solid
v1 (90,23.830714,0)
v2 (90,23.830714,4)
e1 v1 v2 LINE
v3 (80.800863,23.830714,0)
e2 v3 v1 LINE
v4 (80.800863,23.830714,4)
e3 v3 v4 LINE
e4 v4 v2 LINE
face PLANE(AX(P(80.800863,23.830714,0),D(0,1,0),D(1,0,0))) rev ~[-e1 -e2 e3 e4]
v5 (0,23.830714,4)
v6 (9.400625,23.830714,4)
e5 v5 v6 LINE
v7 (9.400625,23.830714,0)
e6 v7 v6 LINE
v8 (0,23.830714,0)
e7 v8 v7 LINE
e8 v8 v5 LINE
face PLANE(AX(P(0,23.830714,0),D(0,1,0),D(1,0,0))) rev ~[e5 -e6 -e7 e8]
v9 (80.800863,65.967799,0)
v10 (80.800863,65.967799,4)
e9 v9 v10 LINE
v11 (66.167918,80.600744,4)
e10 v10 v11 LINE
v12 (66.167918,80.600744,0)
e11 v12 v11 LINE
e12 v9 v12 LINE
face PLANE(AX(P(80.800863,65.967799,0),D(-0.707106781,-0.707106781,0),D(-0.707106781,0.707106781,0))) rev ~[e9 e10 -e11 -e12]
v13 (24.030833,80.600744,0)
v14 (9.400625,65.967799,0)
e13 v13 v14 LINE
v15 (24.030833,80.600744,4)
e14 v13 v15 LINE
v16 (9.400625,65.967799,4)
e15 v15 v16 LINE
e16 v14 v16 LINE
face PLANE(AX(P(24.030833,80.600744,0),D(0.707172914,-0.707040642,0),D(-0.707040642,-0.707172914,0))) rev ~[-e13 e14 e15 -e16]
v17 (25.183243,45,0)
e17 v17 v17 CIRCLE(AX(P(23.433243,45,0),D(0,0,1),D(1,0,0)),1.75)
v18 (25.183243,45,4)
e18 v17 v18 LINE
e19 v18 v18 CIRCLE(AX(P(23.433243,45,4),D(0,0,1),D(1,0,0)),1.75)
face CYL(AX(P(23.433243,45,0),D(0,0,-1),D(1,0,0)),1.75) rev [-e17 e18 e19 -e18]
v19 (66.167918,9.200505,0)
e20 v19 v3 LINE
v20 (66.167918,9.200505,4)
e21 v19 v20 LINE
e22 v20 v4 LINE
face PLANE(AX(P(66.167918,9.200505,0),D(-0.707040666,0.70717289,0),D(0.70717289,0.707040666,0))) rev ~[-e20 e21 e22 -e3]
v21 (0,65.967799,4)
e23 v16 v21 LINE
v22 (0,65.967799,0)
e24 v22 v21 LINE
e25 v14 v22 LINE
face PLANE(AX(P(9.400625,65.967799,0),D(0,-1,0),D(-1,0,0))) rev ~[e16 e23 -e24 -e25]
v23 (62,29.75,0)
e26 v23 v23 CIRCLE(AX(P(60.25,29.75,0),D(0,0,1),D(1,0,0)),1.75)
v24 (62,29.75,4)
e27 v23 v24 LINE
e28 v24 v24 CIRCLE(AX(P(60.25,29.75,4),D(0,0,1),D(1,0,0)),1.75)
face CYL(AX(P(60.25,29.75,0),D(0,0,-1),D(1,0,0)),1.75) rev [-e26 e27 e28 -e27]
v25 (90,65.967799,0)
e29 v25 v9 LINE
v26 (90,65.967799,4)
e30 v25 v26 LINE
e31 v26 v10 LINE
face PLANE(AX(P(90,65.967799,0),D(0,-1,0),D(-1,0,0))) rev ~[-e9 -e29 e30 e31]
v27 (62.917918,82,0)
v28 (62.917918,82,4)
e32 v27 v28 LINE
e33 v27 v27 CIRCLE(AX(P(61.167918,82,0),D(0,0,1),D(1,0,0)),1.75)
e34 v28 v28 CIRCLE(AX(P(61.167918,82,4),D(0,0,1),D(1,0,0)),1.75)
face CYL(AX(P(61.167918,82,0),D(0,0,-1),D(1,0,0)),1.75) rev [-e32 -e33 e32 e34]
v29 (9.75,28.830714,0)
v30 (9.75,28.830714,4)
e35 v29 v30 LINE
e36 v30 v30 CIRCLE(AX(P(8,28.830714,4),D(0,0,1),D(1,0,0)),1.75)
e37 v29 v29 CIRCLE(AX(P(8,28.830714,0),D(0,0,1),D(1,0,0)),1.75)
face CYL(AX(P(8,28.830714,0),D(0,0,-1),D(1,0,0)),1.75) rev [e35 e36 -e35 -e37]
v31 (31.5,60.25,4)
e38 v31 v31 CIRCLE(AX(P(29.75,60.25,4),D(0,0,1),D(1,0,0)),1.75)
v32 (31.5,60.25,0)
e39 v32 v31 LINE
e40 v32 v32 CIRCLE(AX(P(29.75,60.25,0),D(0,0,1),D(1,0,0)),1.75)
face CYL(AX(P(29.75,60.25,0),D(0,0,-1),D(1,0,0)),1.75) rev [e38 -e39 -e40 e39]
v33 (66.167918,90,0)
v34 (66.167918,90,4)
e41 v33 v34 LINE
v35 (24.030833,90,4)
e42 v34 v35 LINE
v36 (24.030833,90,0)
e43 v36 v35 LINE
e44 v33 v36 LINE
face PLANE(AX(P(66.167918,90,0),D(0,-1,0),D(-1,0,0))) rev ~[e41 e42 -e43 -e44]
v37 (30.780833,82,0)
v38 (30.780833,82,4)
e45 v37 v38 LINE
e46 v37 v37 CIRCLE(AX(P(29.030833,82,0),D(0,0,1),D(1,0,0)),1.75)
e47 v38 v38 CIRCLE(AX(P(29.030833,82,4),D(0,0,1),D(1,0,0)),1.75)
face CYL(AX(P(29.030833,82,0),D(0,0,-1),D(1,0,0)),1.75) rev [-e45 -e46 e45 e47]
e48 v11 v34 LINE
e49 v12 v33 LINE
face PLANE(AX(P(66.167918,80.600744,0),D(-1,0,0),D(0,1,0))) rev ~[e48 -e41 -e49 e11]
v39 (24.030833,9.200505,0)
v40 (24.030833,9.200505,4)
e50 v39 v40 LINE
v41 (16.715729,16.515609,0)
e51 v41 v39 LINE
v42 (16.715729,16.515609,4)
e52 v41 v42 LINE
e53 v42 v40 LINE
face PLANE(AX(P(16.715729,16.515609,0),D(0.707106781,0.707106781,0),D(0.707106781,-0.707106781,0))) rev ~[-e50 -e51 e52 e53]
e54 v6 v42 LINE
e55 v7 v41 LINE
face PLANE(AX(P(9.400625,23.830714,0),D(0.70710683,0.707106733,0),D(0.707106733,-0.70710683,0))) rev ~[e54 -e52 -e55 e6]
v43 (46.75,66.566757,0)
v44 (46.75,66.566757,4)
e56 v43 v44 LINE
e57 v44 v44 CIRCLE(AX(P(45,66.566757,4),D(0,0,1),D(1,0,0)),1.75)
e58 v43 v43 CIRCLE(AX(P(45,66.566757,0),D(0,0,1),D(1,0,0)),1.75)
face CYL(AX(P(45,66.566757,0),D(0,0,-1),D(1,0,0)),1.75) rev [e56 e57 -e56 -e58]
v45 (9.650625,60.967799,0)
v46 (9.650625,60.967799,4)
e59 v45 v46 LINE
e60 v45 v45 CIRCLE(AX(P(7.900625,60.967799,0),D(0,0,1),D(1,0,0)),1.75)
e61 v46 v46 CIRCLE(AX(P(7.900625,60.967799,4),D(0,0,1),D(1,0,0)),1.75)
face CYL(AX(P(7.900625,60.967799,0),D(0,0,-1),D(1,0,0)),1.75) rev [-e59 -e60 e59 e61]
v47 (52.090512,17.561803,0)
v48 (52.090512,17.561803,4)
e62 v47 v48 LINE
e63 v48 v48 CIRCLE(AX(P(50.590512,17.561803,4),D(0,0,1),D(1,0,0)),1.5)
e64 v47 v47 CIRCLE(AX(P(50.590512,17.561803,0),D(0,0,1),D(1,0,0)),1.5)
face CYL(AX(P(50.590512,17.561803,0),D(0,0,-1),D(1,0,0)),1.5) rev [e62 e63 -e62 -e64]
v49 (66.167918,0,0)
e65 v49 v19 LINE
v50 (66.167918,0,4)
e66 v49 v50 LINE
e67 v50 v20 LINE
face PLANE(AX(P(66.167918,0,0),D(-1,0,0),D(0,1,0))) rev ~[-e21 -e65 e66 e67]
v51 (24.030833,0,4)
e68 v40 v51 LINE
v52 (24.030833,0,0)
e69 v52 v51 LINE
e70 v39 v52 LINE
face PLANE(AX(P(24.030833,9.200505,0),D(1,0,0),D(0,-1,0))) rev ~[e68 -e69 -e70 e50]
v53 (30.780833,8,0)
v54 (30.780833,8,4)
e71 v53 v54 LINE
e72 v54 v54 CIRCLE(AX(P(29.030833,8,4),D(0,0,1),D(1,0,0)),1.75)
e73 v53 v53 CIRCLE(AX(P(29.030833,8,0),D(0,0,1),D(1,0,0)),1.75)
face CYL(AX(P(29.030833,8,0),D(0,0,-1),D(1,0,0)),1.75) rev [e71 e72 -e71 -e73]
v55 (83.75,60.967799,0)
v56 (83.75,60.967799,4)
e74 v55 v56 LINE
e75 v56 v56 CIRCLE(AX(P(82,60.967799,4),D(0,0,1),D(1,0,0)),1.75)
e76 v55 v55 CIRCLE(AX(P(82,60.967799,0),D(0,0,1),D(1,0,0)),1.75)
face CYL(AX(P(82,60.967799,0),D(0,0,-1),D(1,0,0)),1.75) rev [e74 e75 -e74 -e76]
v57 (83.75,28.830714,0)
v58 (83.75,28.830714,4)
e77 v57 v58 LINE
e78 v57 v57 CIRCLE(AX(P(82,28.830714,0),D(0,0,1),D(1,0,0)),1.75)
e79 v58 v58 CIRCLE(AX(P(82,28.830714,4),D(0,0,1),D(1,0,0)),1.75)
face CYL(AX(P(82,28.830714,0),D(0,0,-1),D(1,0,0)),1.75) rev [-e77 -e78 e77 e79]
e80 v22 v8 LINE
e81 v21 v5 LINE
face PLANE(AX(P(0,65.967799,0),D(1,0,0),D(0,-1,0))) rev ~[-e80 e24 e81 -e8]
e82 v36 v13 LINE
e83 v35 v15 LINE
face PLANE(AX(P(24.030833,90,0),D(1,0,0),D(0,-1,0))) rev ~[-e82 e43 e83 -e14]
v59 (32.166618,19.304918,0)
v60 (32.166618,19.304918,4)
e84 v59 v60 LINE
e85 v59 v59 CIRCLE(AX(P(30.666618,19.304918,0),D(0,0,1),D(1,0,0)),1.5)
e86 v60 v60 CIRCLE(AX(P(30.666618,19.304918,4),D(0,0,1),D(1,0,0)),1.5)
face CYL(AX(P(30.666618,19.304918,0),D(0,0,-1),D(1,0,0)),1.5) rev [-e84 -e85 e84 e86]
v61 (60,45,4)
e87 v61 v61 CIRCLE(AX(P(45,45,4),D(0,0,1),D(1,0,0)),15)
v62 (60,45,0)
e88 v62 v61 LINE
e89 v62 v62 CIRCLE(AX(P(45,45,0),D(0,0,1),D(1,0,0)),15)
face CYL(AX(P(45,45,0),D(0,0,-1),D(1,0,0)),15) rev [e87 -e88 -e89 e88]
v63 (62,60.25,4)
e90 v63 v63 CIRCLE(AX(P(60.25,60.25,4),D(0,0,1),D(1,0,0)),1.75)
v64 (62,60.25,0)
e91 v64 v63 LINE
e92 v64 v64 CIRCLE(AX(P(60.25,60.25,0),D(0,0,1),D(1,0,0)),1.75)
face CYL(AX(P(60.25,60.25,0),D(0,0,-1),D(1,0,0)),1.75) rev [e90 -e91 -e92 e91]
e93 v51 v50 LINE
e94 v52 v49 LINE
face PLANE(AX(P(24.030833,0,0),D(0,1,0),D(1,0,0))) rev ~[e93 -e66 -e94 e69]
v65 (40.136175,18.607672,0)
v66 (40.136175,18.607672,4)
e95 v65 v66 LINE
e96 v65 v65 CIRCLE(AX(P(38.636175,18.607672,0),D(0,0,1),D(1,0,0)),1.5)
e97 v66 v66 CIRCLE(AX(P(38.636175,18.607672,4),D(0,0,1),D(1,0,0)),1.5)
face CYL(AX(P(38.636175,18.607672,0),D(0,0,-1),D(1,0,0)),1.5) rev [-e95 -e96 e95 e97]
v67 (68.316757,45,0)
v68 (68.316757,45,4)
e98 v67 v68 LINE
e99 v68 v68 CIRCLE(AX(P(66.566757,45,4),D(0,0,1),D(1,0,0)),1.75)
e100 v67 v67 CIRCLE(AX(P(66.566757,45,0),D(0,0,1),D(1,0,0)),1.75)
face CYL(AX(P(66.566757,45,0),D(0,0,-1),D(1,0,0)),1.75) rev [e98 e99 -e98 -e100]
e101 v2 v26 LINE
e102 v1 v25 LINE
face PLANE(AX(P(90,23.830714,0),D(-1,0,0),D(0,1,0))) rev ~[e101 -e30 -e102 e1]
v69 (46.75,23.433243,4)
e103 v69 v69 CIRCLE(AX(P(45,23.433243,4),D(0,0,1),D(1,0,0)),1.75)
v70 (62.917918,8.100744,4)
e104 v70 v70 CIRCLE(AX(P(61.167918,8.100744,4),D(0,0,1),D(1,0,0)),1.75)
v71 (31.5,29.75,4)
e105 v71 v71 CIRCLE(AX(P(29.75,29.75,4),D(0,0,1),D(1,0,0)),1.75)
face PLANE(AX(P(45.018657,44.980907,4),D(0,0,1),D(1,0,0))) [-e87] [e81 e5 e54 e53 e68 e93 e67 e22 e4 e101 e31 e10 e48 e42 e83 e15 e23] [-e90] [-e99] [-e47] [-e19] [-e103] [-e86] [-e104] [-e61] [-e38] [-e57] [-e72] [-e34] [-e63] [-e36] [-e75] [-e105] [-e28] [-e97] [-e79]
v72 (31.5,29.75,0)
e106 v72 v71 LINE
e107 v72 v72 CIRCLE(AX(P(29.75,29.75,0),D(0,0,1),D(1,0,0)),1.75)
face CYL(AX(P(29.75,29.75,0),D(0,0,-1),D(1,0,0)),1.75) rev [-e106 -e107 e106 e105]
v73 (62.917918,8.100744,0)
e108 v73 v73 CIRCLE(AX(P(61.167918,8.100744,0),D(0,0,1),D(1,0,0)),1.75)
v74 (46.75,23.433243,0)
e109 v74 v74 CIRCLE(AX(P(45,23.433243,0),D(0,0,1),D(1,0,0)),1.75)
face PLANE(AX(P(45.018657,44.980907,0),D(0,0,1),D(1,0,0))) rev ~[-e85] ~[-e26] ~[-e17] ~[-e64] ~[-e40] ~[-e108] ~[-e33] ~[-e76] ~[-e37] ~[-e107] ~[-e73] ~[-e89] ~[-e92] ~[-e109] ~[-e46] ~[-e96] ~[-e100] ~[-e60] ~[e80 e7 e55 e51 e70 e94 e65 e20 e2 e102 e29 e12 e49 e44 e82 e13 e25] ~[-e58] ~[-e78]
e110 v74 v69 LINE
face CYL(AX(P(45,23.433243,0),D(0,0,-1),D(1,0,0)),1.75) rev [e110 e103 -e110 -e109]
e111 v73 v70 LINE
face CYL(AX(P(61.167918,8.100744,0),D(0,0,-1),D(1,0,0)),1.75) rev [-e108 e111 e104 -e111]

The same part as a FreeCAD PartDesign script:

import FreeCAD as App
import Part
import Sketcher

V = App.Vector
Q = App.Units.Quantity


def add_polygon(sketch, points):
    """Adds a closed chain of lines whose ends are joined by coincident constraints."""
    first, n = sketch.GeometryCount, len(points)
    for a, b in zip(points, points[1:] + points[:1]):
        sketch.addGeometry(Part.LineSegment(App.Vector(*a, 0), App.Vector(*b, 0)), False)
    for i in range(n):
        sketch.addConstraint(Sketcher.Constraint("Coincident", first + i, 2, first + (i + 1) % n, 1))

doc = App.newDocument("Part")
body = doc.addObject("PartDesign::Body", "Body")

# Sketch on XY plane
sketch1 = body.newObject("Sketcher::SketchObject", "Sketch")
sketch1.AttachmentSupport = (doc.getObject("XY_Plane"), [""])
sketch1.MapMode = "FlatFace"
add_polygon(sketch1, [(24, 9.2), (24, 0), (66.2, 0), (66.2, 9.2), (80.8, 23.8), (90, 23.8), (90, 66), (80.8, 66), (66.2, 80.6), (66.2, 90), (24, 90), (24, 80.6), (9.4, 66), (0, 66), (0, 23.8), (9.4, 23.8), (16.7, 16.5)])  # lines 0-16
sketch1.addGeometry(Part.Circle(V(29, 8, 0), V(0, 0, 1), 1.8), False)  # 17
sketch1.addGeometry(Part.Circle(V(30.7, 19.3, 0), V(0, 0, 1), 1.5), False)  # 18
sketch1.addGeometry(Part.Circle(V(38.6, 18.6, 0), V(0, 0, 1), 1.5), False)  # 19
sketch1.addGeometry(Part.Circle(V(8, 28.8, 0), V(0, 0, 1), 1.8), False)  # 20
sketch1.addGeometry(Part.Circle(V(29.8, 29.8, 0), V(0, 0, 1), 1.8), False)  # 21
sketch1.addGeometry(Part.Circle(V(61.2, 8.1, 0), V(0, 0, 1), 1.8), False)  # 22
sketch1.addGeometry(Part.Circle(V(50.6, 17.6, 0), V(0, 0, 1), 1.5), False)  # 23
sketch1.addGeometry(Part.Circle(V(45, 23.4, 0), V(0, 0, 1), 1.8), False)  # 24
sketch1.addGeometry(Part.Circle(V(60.2, 29.8, 0), V(0, 0, 1), 1.8), False)  # 25
sketch1.addGeometry(Part.Circle(V(82, 28.8, 0), V(0, 0, 1), 1.8), False)  # 26
sketch1.addGeometry(Part.Circle(V(23.4, 45, 0), V(0, 0, 1), 1.8), False)  # 27
sketch1.addGeometry(Part.Circle(V(7.9, 61, 0), V(0, 0, 1), 1.8), False)  # 28
sketch1.addGeometry(Part.Circle(V(29.8, 60.2, 0), V(0, 0, 1), 1.8), False)  # 29
sketch1.addGeometry(Part.Circle(V(29, 82, 0), V(0, 0, 1), 1.8), False)  # 30
sketch1.addGeometry(Part.Circle(V(45, 45, 0), V(0, 0, 1), 15), False)  # 31
sketch1.addGeometry(Part.Circle(V(60.2, 60.2, 0), V(0, 0, 1), 1.8), False)  # 32
sketch1.addGeometry(Part.Circle(V(66.6, 45, 0), V(0, 0, 1), 1.8), False)  # 33
sketch1.addGeometry(Part.Circle(V(82, 61, 0), V(0, 0, 1), 1.8), False)  # 34
sketch1.addGeometry(Part.Circle(V(45, 66.6, 0), V(0, 0, 1), 1.8), False)  # 35
sketch1.addGeometry(Part.Circle(V(61.2, 82, 0), V(0, 0, 1), 1.8), False)  # 36
sketch1.addConstraint([
    Sketcher.Constraint("Vertical", 0),
    Sketcher.Constraint("Horizontal", 1),
    Sketcher.Constraint("Vertical", 2),
    Sketcher.Constraint("Horizontal", 4),
    Sketcher.Constraint("Vertical", 5),
    Sketcher.Constraint("Horizontal", 6),
    Sketcher.Constraint("Vertical", 8),
    Sketcher.Constraint("Horizontal", 9),
    Sketcher.Constraint("Vertical", 10),
    Sketcher.Constraint("Horizontal", 12),
    Sketcher.Constraint("Vertical", 13),
    Sketcher.Constraint("Horizontal", 14),
    Sketcher.Constraint("Equal", 18, 19),
    Sketcher.Constraint("Equal", 17, 20),
    Sketcher.Constraint("Equal", 20, 21),
    Sketcher.Constraint("Equal", 21, 22),
    Sketcher.Constraint("Equal", 19, 23),
    Sketcher.Constraint("Equal", 22, 24),
    Sketcher.Constraint("Equal", 24, 25),
    Sketcher.Constraint("Equal", 25, 26),
    Sketcher.Constraint("Equal", 26, 27),
    Sketcher.Constraint("Equal", 27, 28),
    Sketcher.Constraint("Equal", 28, 29),
    Sketcher.Constraint("Equal", 29, 30),
    Sketcher.Constraint("Equal", 30, 32),
    Sketcher.Constraint("Equal", 32, 33),
    Sketcher.Constraint("Equal", 33, 34),
    Sketcher.Constraint("Equal", 34, 35),
    Sketcher.Constraint("Equal", 35, 36),
    Sketcher.Constraint("PointOnObject", 0, 2, -1),
    Sketcher.Constraint("PointOnObject", 12, 2, -2),
    Sketcher.Constraint("Parallel", 7, 15),
    Sketcher.Constraint("Parallel", 15, 16),
    Sketcher.Constraint("Horizontal", 21, 3, 25, 3),
    Sketcher.Constraint("Horizontal", 20, 3, 26, 3),
    Sketcher.Constraint("Horizontal", 27, 3, 31, 3),
    Sketcher.Constraint("Horizontal", 29, 3, 32, 3),
    Sketcher.Constraint("Horizontal", 31, 3, 33, 3),
    Sketcher.Constraint("Horizontal", 28, 3, 34, 3),
    Sketcher.Constraint("Horizontal", 30, 3, 36, 3),
    Sketcher.Constraint("Horizontal", 7, 2, 10, 2),
    Sketcher.Constraint("Horizontal", 6, 2, 11, 2),
    Sketcher.Constraint("Horizontal", 4, 2, 13, 2),
    Sketcher.Constraint("Horizontal", 2, 2, 16, 2),
    Sketcher.Constraint("Vertical", 21, 3, 29, 3),
    Sketcher.Constraint("Vertical", 17, 3, 30, 3),
    Sketcher.Constraint("Vertical", 24, 3, 31, 3),
    Sketcher.Constraint("Vertical", 25, 3, 32, 3),
    Sketcher.Constraint("Vertical", 26, 3, 34, 3),
    Sketcher.Constraint("Vertical", 31, 3, 35, 3),
    Sketcher.Constraint("Vertical", 22, 3, 36, 3),
    Sketcher.Constraint("Vertical", 3, 2, 6, 2),
    Sketcher.Constraint("Vertical", 2, 2, 7, 2),
    Sketcher.Constraint("Vertical", 0, 2, 9, 2),
    Sketcher.Constraint("Vertical", 11, 2, 14, 2),
    Sketcher.Constraint("Equal", 9, 5),
    Sketcher.Constraint("Equal", 15, 16),
    Sketcher.Constraint("Diameter", 18, Q("3 mm")),
    Sketcher.Constraint("Diameter", 31, Q("30 mm")),
    Sketcher.Constraint("Diameter", 17, Q("3.5 mm")),
    Sketcher.Constraint("Angle", 7, Q("135 deg")),
    Sketcher.Constraint("DistanceY", -1, 1, 17, 3, Q("8 mm")),
    Sketcher.Constraint("DistanceX", -1, 1, 20, 3, Q("8 mm")),
    Sketcher.Constraint("DistanceX", -1, 1, 24, 3, Q("45 mm")),
    Sketcher.Constraint("DistanceX", -1, 1, 26, 3, Q("82 mm")),
    Sketcher.Constraint("DistanceY", -1, 1, 27, 3, Q("45 mm")),
    Sketcher.Constraint("DistanceY", -1, 1, 30, 3, Q("82 mm")),
    Sketcher.Constraint("DistanceX", -1, 1, 4, 2, Q("90 mm")),
    Sketcher.Constraint("DistanceY", -1, 1, 8, 2, Q("90 mm")),
    Sketcher.Constraint("DistanceX", 0, 2, 17, 3, Q("5 mm")),
    Sketcher.Constraint("DistanceX", 22, 3, 1, 2, Q("5 mm")),
    Sketcher.Constraint("DistanceY", 3, 2, 26, 3, Q("5 mm")),
    Sketcher.Constraint("DistanceY", 34, 3, 5, 2, Q("5 mm")),
    Sketcher.Constraint("DistanceX", 21, 3, 25, 3, Q("30.5 mm")),
    Sketcher.Constraint("DistanceY", 21, 3, 29, 3, Q("30.5 mm")),
    Sketcher.Constraint("DistanceX", 28, 3, 11, 2, Q("1.5 mm")),
    Sketcher.Constraint("DistanceX", -1, 1, 21, 3, Q("29.75 mm")),
    Sketcher.Constraint("DistanceY", -1, 1, 21, 3, Q("29.75 mm")),
    Sketcher.Constraint("DistanceY", -1, 1, 28, 3, Q("60.967799 mm")),
    Sketcher.Constraint("DistanceX", 18, 3, 22, 3, Q("30.5013 mm")),
    Sketcher.Constraint("DistanceY", 2, 2, 23, 3, Q("8.361298 mm")),
    Sketcher.Constraint("Distance", 7, Q("20.694109 mm")),
    Sketcher.Constraint("Distance", 15, Q("10.34512 mm")),
    Sketcher.Constraint("DistanceX", 1, 1, 1, 2, Q("42.137085 mm")),
    Sketcher.Constraint("DistanceX", 4, 1, 4, 2, Q("9.199137 mm")),
    Sketcher.Constraint("DistanceY", -1, 1, 18, 3, Q("19.304918 mm")),
    Sketcher.Constraint("DistanceX", -1, 1, 23, 3, Q("50.590512 mm")),
    Sketcher.Constraint("DistanceY", 22, 3, 20, 3, Q("20.72997 mm")),
    Sketcher.Constraint("DistanceY", 23, 3, 19, 3, Q("1.045869 mm")),
    Sketcher.Constraint("DistanceY", 19, 3, 24, 3, Q("4.825571 mm")),
    Sketcher.Constraint("DistanceX", 28, 3, 27, 3, Q("15.532618 mm")),
    Sketcher.Constraint("DistanceX", 28, 3, 19, 3, Q("30.73555 mm")),
    Sketcher.Constraint("DistanceX", 36, 3, 33, 3, Q("5.398839 mm")),
    Sketcher.Constraint("DistanceY", -1, 1, 35, 3, Q("66.566757 mm")),
])
pad1 = body.newObject("PartDesign::Pad", "Pad")
pad1.Profile = sketch1
pad1.Length = 4

doc.recompute()
